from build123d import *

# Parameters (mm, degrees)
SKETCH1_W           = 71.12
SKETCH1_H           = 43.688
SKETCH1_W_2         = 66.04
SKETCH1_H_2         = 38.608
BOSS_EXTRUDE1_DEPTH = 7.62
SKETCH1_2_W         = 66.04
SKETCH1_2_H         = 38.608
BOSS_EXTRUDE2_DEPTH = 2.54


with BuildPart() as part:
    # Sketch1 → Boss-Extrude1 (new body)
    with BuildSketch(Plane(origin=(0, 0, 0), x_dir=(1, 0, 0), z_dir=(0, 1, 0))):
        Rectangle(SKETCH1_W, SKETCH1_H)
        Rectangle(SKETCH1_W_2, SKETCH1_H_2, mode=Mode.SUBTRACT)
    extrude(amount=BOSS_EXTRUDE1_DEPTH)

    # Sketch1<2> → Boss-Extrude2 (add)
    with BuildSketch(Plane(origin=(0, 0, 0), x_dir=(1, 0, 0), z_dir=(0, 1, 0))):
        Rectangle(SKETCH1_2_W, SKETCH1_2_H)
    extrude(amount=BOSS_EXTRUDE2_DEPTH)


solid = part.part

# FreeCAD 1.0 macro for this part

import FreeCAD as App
import Part
import Sketcher
Q = App.Units.Quantity


def add_polygon(sketch, points):
    """Adds a closed chain of lines whose ends are joined by coincident constraints."""
    first, n = sketch.GeometryCount, len(points)
    for a, b in zip(points, points[1:] + points[:1]):
        sketch.addGeometry(Part.LineSegment(App.Vector(*a, 0), App.Vector(*b, 0)), False)
    for i in range(n):
        sketch.addConstraint(Sketcher.Constraint("Coincident", first + i, 2, first + (i + 1) % n, 1))

doc = App.newDocument("Part")
body = doc.addObject("PartDesign::Body", "Body")

sketch1 = body.newObject("Sketcher::SketchObject", "Sketch")
sketch1.AttachmentSupport = (doc.getObject("XZ_Plane"), [""])
sketch1.MapMode = "FlatFace"
add_polygon(sketch1, [(-35.56, -21.844), (-35.56, 21.844), (35.56, 21.844), (35.56, -21.844)])
add_polygon(sketch1, [(33.02, 19.304), (-33.02, 19.304), (-33.02, -19.304), (33.02, -19.304)])
sketch1.addConstraint([
    Sketcher.Constraint("Vertical", 0),
    Sketcher.Constraint("Horizontal", 1),
    Sketcher.Constraint("Vertical", 2),
    Sketcher.Constraint("Horizontal", 3),
    Sketcher.Constraint("Horizontal", 4),
    Sketcher.Constraint("Vertical", 5),
    Sketcher.Constraint("Horizontal", 6),
    Sketcher.Constraint("Vertical", 7),
    Sketcher.Constraint("Symmetric", 0, 2, 2, 2, -1, 1),
    Sketcher.Constraint("Symmetric", 4, 2, 6, 2, -1, 1),
    Sketcher.Constraint("DistanceX", 1, 1, 1, 2, Q("2.8 in")),
    Sketcher.Constraint("DistanceX", 4, 2, 4, 1, Q("2.6 in")),
    Sketcher.Constraint("DistanceY", 0, 1, 0, 2, Q("1.72 in")),
    Sketcher.Constraint("DistanceY", 5, 2, 5, 1, Q("1.52 in")),
])
pad1 = body.newObject("PartDesign::Pad", "Pad")
pad1.Profile = sketch1
pad1.Length = Q("0.3 in")
pad1.Reversed = True

sketch2 = body.newObject("Sketcher::SketchObject", "Sketch001")
sketch2.AttachmentSupport = (doc.getObject("XZ_Plane"), [""])
sketch2.MapMode = "FlatFace"
add_polygon(sketch2, [(-33.02, -19.304), (-33.02, 19.304), (33.02, 19.304), (33.02, -19.304)])
sketch2.addConstraint([
    Sketcher.Constraint("Vertical", 0),
    Sketcher.Constraint("Horizontal", 1),
    Sketcher.Constraint("Vertical", 2),
    Sketcher.Constraint("Horizontal", 3),
    Sketcher.Constraint("Symmetric", 0, 2, 2, 2, -1, 1),
    Sketcher.Constraint("DistanceX", 1, 1, 1, 2, Q("2.6 in")),
    Sketcher.Constraint("DistanceY", 0, 1, 0, 2, Q("1.52 in")),
])
pad2 = body.newObject("PartDesign::Pad", "Pad001")
pad2.Profile = sketch2
pad2.Length = Q("0.1 in")
pad2.Reversed = True

doc.recompute()
